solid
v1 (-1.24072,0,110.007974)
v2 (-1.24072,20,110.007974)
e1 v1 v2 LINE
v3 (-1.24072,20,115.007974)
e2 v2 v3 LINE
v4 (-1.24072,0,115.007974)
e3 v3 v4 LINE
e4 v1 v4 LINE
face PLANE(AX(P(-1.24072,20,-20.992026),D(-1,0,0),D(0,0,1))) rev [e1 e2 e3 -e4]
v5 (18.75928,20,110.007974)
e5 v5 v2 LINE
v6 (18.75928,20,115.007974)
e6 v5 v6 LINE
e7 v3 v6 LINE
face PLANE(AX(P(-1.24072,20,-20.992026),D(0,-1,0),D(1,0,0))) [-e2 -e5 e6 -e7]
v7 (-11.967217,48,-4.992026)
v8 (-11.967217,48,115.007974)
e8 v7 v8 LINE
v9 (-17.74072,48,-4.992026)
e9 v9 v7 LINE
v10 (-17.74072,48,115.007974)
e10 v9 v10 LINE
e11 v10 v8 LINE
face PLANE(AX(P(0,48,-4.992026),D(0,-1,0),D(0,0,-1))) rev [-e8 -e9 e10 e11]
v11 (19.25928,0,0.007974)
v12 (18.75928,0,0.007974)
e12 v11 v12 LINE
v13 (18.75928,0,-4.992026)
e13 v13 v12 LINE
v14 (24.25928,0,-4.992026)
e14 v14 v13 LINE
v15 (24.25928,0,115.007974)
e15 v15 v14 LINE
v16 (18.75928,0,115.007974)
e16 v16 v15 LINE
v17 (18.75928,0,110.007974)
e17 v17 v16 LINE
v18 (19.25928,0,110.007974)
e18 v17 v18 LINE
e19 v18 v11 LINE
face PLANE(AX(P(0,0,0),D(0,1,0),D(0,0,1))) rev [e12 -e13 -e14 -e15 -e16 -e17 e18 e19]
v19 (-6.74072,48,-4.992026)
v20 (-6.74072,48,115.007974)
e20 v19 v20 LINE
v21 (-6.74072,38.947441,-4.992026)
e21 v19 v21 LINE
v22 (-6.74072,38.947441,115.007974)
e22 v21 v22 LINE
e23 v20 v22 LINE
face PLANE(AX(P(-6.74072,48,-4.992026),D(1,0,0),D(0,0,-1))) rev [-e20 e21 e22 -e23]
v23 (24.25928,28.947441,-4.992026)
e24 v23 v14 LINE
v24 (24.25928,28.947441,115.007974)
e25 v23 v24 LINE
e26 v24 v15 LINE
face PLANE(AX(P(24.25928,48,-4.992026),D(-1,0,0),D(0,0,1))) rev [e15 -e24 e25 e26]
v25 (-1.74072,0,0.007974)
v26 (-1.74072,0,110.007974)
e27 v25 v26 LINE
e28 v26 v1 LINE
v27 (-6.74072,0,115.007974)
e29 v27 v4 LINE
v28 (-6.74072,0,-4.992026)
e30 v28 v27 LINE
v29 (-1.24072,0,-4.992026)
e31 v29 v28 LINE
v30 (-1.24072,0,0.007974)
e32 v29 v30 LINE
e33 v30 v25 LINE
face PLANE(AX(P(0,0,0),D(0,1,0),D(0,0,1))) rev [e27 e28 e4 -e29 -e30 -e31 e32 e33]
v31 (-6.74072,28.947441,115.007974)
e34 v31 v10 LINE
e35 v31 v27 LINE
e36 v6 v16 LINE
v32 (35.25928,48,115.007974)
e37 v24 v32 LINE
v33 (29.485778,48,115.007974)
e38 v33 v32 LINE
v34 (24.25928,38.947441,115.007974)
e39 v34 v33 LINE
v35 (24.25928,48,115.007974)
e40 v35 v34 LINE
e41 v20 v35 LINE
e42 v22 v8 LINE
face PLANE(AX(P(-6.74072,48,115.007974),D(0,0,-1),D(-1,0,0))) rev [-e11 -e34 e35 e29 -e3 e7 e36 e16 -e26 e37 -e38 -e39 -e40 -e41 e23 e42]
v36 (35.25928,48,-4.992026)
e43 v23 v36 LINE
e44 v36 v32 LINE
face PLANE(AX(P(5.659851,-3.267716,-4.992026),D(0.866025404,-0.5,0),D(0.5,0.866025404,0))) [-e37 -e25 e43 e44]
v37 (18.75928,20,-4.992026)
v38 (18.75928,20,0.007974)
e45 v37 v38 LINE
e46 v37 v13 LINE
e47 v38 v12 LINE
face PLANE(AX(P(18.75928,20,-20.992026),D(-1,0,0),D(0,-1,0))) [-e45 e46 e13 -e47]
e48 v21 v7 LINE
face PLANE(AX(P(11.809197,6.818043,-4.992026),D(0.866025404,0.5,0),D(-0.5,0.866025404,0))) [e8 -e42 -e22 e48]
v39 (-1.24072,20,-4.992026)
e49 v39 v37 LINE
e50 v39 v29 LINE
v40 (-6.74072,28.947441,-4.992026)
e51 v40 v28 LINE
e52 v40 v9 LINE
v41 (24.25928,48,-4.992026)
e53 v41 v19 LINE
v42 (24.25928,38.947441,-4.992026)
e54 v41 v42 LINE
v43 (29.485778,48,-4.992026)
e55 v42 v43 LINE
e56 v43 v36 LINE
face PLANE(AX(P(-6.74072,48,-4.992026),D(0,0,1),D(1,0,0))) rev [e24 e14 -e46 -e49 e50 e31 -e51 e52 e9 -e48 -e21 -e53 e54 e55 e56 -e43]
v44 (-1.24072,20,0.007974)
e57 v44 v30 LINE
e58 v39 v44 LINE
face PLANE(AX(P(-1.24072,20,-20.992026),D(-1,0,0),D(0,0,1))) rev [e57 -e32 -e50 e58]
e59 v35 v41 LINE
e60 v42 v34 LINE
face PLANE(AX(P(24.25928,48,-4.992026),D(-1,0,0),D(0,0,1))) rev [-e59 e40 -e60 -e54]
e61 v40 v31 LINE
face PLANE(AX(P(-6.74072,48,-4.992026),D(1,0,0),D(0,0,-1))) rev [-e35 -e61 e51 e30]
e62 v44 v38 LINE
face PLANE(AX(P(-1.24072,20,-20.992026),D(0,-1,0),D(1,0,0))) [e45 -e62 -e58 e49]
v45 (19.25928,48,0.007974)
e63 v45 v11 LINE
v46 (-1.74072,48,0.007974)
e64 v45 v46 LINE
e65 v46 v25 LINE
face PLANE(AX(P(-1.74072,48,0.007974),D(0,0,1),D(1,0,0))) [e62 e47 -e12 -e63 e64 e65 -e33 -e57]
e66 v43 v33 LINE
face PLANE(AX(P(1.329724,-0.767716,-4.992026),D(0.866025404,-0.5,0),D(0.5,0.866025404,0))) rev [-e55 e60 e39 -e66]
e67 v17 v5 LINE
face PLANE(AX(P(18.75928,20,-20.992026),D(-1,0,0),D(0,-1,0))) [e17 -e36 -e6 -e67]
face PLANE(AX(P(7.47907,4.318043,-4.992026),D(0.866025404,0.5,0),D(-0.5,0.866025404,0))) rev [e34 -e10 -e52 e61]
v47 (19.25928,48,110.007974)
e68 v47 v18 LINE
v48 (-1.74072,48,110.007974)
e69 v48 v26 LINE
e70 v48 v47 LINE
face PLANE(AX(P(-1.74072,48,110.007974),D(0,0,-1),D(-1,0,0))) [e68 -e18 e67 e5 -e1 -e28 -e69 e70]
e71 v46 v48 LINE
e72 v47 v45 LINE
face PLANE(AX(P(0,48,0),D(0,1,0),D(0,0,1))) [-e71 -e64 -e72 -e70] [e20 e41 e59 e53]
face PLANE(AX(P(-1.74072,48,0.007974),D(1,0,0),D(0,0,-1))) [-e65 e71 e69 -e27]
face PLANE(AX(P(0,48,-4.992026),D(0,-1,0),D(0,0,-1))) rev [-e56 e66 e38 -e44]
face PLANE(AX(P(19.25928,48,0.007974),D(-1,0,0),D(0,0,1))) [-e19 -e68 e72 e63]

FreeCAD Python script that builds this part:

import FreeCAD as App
import Part
import Sketcher

V = App.Vector
Q = App.Units.Quantity

doc = App.newDocument("Part")
body = doc.addObject("PartDesign::Body", "Body")

# Sketch on XZ plane
sketch1 = body.newObject("Sketcher::SketchObject", "Sketch")
sketch1.AttachmentSupport = (doc.getObject("XZ_Plane"), [""])
sketch1.MapMode = "FlatFace"
sketch1.addGeometry([
    Part.LineSegment(V(-7, -5, 0), V(-7, 115, 0)),  # 0
    Part.LineSegment(V(-7, 115, 0), V(24, 115, 0)),  # 1
    Part.LineSegment(V(24, 115, 0), V(24, -5, 0)),  # 2
    Part.LineSegment(V(24, -5, 0), V(-7, -5, 0)),  # 3
    Part.LineSegment(V(19, 110, 0), V(-2, 110, 0)),  # 4
    Part.LineSegment(V(-2, 110, 0), V(-2, 0, 0)),  # 5
    Part.LineSegment(V(-2, 0, 0), V(19, 0, 0)),  # 6
    Part.LineSegment(V(19, 0, 0), V(19, 110, 0)),  # 7
], False)
sketch1.addConstraint([
    Sketcher.Constraint("Coincident", 0, 2, 1, 1),
    Sketcher.Constraint("Coincident", 1, 2, 2, 1),
    Sketcher.Constraint("Coincident", 2, 2, 3, 1),
    Sketcher.Constraint("Coincident", 3, 2, 0, 1),
    Sketcher.Constraint("Coincident", 4, 2, 5, 1),
    Sketcher.Constraint("Coincident", 5, 2, 6, 1),
    Sketcher.Constraint("Coincident", 6, 2, 7, 1),
    Sketcher.Constraint("Coincident", 7, 2, 4, 1),
    Sketcher.Constraint("Vertical", 0),
    Sketcher.Constraint("Horizontal", 1),
    Sketcher.Constraint("Vertical", 2),
    Sketcher.Constraint("Horizontal", 3),
    Sketcher.Constraint("Horizontal", 4),
    Sketcher.Constraint("Vertical", 5),
    Sketcher.Constraint("Horizontal", 6),
    Sketcher.Constraint("Vertical", 7),
    Sketcher.Constraint("DistanceX", 1, 1, 1, 2, Q("31 mm")),
    Sketcher.Constraint("DistanceX", 4, 2, 4, 1, Q("21 mm")),
    Sketcher.Constraint("DistanceY", 0, 1, 0, 2, Q("120 mm")),
    Sketcher.Constraint("DistanceY", 5, 2, 5, 1, Q("110 mm")),
    Sketcher.Constraint("DistanceX", 0, 2, 4, 2, Q("5 mm")),
    Sketcher.Constraint("DistanceY", 4, 2, 0, 2, Q("5 mm")),
    Sketcher.Constraint("DistanceX", 0, 2, -1, 1, Q("6.74072 mm")),
    Sketcher.Constraint("DistanceY", -1, 1, 0, 2, Q("115.007974 mm")),
])
pad1 = body.newObject("PartDesign::Pad", "Pad")
pad1.Profile = sketch1
pad1.Length = 48
pad1.Reversed = True

# Sketch on XY plane
sketch2 = body.newObject("Sketcher::SketchObject", "Sketch001")
sketch2.AttachmentSupport = (doc.getObject("XY_Plane"), [""])
sketch2.MapMode = "FlatFace"
sketch2.AttachmentOffset = App.Placement(V(0, 0, 115.007974), App.Rotation())
sketch2.addGeometry([
    Part.LineSegment(V(-1, 20, 0), V(-1, 0, 0)),
    Part.LineSegment(V(-1, 0, 0), V(19, 0, 0)),
    Part.LineSegment(V(19, 0, 0), V(19, 20, 0)),
    Part.LineSegment(V(19, 20, 0), V(-1, 20, 0)),
], False)
sketch2.addConstraint([
    Sketcher.Constraint("Coincident", 0, 2, 1, 1),
    Sketcher.Constraint("Coincident", 1, 2, 2, 1),
    Sketcher.Constraint("Coincident", 2, 2, 3, 1),
    Sketcher.Constraint("Coincident", 3, 2, 0, 1),
    Sketcher.Constraint("Vertical", 0),
    Sketcher.Constraint("Horizontal", 1),
    Sketcher.Constraint("Vertical", 2),
    Sketcher.Constraint("Horizontal", 3),
    Sketcher.Constraint("PointOnObject", 0, 2, -1),
    Sketcher.Constraint("Equal", 3, 0),
    Sketcher.Constraint("DistanceX", 1, 1, 1, 2, Q("20 mm")),
    Sketcher.Constraint("DistanceX", 0, 2, -1, 1, Q("1.24072 mm")),
])
pocket1 = body.newObject("PartDesign::Pocket", "Pocket")
pocket1.Profile = sketch2
pocket1.Length = 136

# Sketch on XY plane
sketch3 = body.newObject("Sketcher::SketchObject", "Sketch002")
sketch3.AttachmentSupport = (doc.getObject("XY_Plane"), [""])
sketch3.MapMode = "FlatFace"
sketch3.AttachmentOffset = App.Placement(V(0, 0, 115.007974), App.Rotation())
sketch3.addGeometry([
    Part.LineSegment(V(-7, 39, 0), V(-12, 48, 0)),  # 0
    Part.LineSegment(V(-12, 48, 0), V(-18, 48, 0)),  # 1
    Part.LineSegment(V(-18, 48, 0), V(-7, 29, 0)),  # 2
    Part.LineSegment(V(-7, 29, 0), V(-7, 39, 0)),  # 3
    Part.LineSegment(V(24, 39, 0), V(24, 29, 0)),  # 4
    Part.LineSegment(V(24, 29, 0), V(35, 48, 0)),  # 5
    Part.LineSegment(V(35, 48, 0), V(29, 48, 0)),  # 6
    Part.LineSegment(V(29, 48, 0), V(24, 39, 0)),  # 7
], False)
sketch3.addConstraint([
    Sketcher.Constraint("Coincident", 0, 2, 1, 1),
    Sketcher.Constraint("Coincident", 1, 2, 2, 1),
    Sketcher.Constraint("Coincident", 2, 2, 3, 1),
    Sketcher.Constraint("Coincident", 3, 2, 0, 1),
    Sketcher.Constraint("Coincident", 4, 2, 5, 1),
    Sketcher.Constraint("Coincident", 5, 2, 6, 1),
    Sketcher.Constraint("Coincident", 6, 2, 7, 1),
    Sketcher.Constraint("Coincident", 7, 2, 4, 1),
    Sketcher.Constraint("Horizontal", 1),
    Sketcher.Constraint("Vertical", 3),
    Sketcher.Constraint("Vertical", 4),
    Sketcher.Constraint("Horizontal", 6),
    Sketcher.Constraint("Parallel", 0, 2),
    Sketcher.Constraint("Parallel", 5, 7),
    Sketcher.Constraint("Horizontal", 2, 2, 4, 2),
    Sketcher.Constraint("Horizontal", 1, 2, 5, 2),
    Sketcher.Constraint("Horizontal", 3, 2, 7, 2),
    Sketcher.Constraint("Equal", 1, 6),
    Sketcher.Constraint("DistanceY", 3, 1, 3, 2, Q("10 mm")),
    Sketcher.Constraint("Angle", 0, Q("120 deg")),
    Sketcher.Constraint("Distance", 2, Q("22 mm")),
    Sketcher.Constraint("DistanceY", -1, 1, 0, 2, Q("48 mm")),
    Sketcher.Constraint("DistanceX", 2, 2, 4, 2, Q("31 mm")),
    Sketcher.Constraint("DistanceX", 1, 2, -1, 1, Q("17.74072 mm")),
])
pad2 = body.newObject("PartDesign::Pad", "Pad001")
pad2.Profile = sketch3
pad2.Length = 120
pad2.Reversed = True

doc.recompute()
